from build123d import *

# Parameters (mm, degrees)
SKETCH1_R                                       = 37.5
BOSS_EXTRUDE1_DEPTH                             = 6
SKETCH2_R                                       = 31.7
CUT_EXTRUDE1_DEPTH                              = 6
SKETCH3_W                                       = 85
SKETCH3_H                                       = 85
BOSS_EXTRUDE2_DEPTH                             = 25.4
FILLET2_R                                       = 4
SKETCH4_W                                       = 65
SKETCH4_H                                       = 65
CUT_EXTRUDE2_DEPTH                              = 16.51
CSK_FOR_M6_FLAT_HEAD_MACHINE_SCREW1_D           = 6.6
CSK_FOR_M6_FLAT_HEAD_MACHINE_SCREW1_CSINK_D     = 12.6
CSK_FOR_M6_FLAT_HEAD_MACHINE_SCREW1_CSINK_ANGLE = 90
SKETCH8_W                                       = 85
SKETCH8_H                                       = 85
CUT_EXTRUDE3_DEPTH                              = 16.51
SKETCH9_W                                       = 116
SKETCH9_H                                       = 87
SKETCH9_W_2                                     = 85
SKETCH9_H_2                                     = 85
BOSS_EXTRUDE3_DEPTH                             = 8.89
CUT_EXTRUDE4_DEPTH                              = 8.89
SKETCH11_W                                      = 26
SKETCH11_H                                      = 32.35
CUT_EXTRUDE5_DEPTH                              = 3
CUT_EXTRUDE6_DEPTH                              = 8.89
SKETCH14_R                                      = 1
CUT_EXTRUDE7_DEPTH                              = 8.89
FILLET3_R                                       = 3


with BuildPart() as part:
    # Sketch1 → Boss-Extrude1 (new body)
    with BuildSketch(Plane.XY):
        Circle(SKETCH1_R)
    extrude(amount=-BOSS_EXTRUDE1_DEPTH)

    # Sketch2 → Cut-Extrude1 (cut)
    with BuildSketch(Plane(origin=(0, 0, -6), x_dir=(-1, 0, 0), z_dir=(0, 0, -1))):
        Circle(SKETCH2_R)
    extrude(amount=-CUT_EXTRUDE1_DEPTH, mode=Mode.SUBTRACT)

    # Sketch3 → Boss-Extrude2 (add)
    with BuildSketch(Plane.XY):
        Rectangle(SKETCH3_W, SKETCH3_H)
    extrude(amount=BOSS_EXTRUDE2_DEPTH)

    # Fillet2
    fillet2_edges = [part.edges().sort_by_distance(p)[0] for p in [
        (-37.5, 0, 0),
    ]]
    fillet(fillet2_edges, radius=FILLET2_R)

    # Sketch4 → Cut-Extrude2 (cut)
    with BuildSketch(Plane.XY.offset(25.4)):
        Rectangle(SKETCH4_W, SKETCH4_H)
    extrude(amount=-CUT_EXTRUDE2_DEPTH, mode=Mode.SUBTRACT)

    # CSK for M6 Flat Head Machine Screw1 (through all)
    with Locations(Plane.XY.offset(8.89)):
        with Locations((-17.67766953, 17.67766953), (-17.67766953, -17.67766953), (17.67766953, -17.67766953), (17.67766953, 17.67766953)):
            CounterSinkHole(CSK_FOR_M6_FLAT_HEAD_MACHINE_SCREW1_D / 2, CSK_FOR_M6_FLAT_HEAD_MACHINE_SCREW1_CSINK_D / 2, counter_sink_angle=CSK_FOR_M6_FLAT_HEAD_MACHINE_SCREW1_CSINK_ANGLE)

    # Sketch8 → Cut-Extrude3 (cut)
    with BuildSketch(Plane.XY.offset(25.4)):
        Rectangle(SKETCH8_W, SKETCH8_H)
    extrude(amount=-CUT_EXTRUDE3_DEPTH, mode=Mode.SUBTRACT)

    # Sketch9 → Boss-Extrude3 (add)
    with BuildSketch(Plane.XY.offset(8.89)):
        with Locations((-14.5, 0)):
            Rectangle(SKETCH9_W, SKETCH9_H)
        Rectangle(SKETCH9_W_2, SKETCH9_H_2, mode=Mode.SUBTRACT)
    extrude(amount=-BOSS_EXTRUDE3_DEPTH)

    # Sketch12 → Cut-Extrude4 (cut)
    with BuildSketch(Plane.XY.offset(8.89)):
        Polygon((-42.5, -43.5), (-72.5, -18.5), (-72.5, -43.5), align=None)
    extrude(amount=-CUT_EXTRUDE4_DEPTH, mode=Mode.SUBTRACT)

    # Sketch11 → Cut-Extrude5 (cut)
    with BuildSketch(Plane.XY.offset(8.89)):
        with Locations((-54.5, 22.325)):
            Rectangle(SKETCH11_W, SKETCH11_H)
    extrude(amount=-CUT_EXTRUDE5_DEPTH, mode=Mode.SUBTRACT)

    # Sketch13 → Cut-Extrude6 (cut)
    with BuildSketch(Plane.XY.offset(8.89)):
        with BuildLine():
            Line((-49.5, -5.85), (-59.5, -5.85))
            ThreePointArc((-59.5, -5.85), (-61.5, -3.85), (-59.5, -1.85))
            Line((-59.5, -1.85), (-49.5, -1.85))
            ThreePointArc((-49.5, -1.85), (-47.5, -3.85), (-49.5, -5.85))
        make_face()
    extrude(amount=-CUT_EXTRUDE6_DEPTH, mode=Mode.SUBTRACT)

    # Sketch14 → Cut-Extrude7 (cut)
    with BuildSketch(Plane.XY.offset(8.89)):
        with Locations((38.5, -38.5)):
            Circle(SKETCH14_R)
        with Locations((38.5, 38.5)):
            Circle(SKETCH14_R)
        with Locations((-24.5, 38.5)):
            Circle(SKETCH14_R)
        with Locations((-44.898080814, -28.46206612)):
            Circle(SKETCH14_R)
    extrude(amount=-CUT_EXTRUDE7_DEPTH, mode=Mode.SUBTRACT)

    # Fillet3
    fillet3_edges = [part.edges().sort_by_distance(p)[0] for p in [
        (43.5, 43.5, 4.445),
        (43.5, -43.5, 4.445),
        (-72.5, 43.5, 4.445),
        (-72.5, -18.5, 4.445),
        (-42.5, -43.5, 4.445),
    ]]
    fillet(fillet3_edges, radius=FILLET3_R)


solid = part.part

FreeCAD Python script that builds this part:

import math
import FreeCAD as App
import Part
import Sketcher


def edges_at(feature, points):
    """Names of the edges that pass closest to the given points."""
    edges = feature.Shape.Edges
    near = lambda p: min(range(len(edges)), key=lambda i: edges[i].distToShape(Part.Vertex(*p))[0])
    return sorted({f"Edge{near(p) + 1}" for p in points})


def add_polygon(sketch, points):
    """Adds a closed chain of lines whose ends are joined by coincident constraints."""
    first, n = sketch.GeometryCount, len(points)
    for a, b in zip(points, points[1:] + points[:1]):
        sketch.addGeometry(Part.LineSegment(App.Vector(*a, 0), App.Vector(*b, 0)), False)
    for i in range(n):
        sketch.addConstraint(Sketcher.Constraint("Coincident", first + i, 2, first + (i + 1) % n, 1))

doc = App.newDocument("Part")
body = doc.addObject("PartDesign::Body", "Body")

# Sketch on XY plane
sketch1 = doc.addObject("Sketcher::SketchObject", "Sketch")
body.addObject(sketch1)
sketch1.AttachmentSupport = (doc.XY_Plane, [""])
sketch1.MapMode = "FlatFace"
sketch1.addGeometry(Part.Circle(App.Vector(0, 0, 0), App.Vector(0, 0, 1), 38), False)
sketch1.addConstraint([
    Sketcher.Constraint("Coincident", 0, 3, -1, 1),
    Sketcher.Constraint("Diameter", 0, 75.0),
])
pad1 = doc.addObject("PartDesign::Pad", "Pad")
body.addObject(pad1)
pad1.Profile = sketch1
pad1.Length = 6
pad1.Reversed = True

# Sketch on XY plane
sketch2 = doc.addObject("Sketcher::SketchObject", "Sketch001")
body.addObject(sketch2)
sketch2.AttachmentSupport = (doc.XY_Plane, [""])
sketch2.MapMode = "FlatFace"
sketch2.AttachmentOffset = App.Placement(App.Vector(0, 0, -6), App.Rotation())
sketch2.addGeometry(Part.Circle(App.Vector(0, 0, 0), App.Vector(0, 0, 1), 32), False)
sketch2.addConstraint([
    Sketcher.Constraint("Coincident", 0, 3, -1, 1),
    Sketcher.Constraint("Diameter", 0, 63.4),
])
pocket1 = doc.addObject("PartDesign::Pocket", "Pocket")
body.addObject(pocket1)
pocket1.Profile = sketch2
pocket1.Length = 6
pocket1.Reversed = True

# Sketch on XY plane
sketch3 = doc.addObject("Sketcher::SketchObject", "Sketch002")
body.addObject(sketch3)
sketch3.AttachmentSupport = (doc.XY_Plane, [""])
sketch3.MapMode = "FlatFace"
add_polygon(sketch3, [(-42, 42), (-42, -42), (42, -42), (42, 42)])  # lines 0-3
sketch3.addConstraint([
    Sketcher.Constraint("Vertical", 0),
    Sketcher.Constraint("Horizontal", 1),
    Sketcher.Constraint("Vertical", 2),
    Sketcher.Constraint("Horizontal", 3),
    Sketcher.Constraint("Symmetric", 0, 2, 2, 2, -1, 1),
    Sketcher.Constraint("Equal", 3, 0),
    Sketcher.Constraint("DistanceX", 1, 1, 1, 2, 85.0),
])
pad2 = doc.addObject("PartDesign::Pad", "Pad001")
body.addObject(pad2)
pad2.Profile = sketch3
pad2.Length = 25.4
doc.recompute()

fillet = doc.addObject("PartDesign::Fillet", "Fillet")
body.addObject(fillet)
fillet.Base = (pad2, edges_at(pad2, [(-37.5, 0, 0)]))
fillet.Radius = 4

# Sketch on XY plane
sketch4 = doc.addObject("Sketcher::SketchObject", "Sketch003")
body.addObject(sketch4)
sketch4.AttachmentSupport = (doc.XY_Plane, [""])
sketch4.MapMode = "FlatFace"
sketch4.AttachmentOffset = App.Placement(App.Vector(0, 0, 25.4), App.Rotation())
add_polygon(sketch4, [(-32, 32), (-32, -32), (32, -32), (32, 32)])  # lines 0-3
sketch4.addConstraint([
    Sketcher.Constraint("Vertical", 0),
    Sketcher.Constraint("Horizontal", 1),
    Sketcher.Constraint("Vertical", 2),
    Sketcher.Constraint("Horizontal", 3),
    Sketcher.Constraint("Symmetric", 0, 2, 2, 2, -1, 1),
    Sketcher.Constraint("Equal", 3, 0),
    Sketcher.Constraint("DistanceX", 1, 1, 1, 2, 65.0),
])
pocket2 = doc.addObject("PartDesign::Pocket", "Pocket001")
body.addObject(pocket2)
pocket2.Profile = sketch4
pocket2.Length = 16.51

# Sketch on XY plane
sketch5 = doc.addObject("Sketcher::SketchObject", "Sketch004")
body.addObject(sketch5)
sketch5.AttachmentSupport = (doc.XY_Plane, [""])
sketch5.MapMode = "FlatFace"
sketch5.AttachmentOffset = App.Placement(App.Vector(0, 0, 8.89), App.Rotation())
sketch5.addGeometry([
    Part.Circle(App.Vector(-17.7, 17.7, 0), App.Vector(0, 0, 1), 3.3),
    Part.Circle(App.Vector(-17.7, -17.7, 0), App.Vector(0, 0, 1), 3.3),
    Part.Circle(App.Vector(17.7, -17.7, 0), App.Vector(0, 0, 1), 3.3),
    Part.Circle(App.Vector(17.7, 17.7, 0), App.Vector(0, 0, 1), 3.3),
], False)
sketch5.addConstraint([
    Sketcher.Constraint("Equal", 0, 1),
    Sketcher.Constraint("Equal", 1, 2),
    Sketcher.Constraint("Equal", 2, 3),
    Sketcher.Constraint("Symmetric", 0, 3, 2, 3, -1, 1),
    Sketcher.Constraint("Symmetric", 1, 3, 3, 3, -1, 1),
    Sketcher.Constraint("Symmetric", 1, 3, 2, 3, -2),
    Sketcher.Constraint("Diameter", 0, 6.6),
    Sketcher.Constraint("DistanceX", 0, 3, -1, 1, 17.67767),
    Sketcher.Constraint("DistanceY", -1, 1, 0, 3, 17.67767),
])
doc.recompute()
hole = doc.addObject("PartDesign::Hole", "Hole")
body.addObject(hole)
hole.Profile = sketch5
hole.ThreadType = "None"
hole.Diameter = 6.6
hole.DepthType = "ThroughAll"
hole.HoleCutType = "Countersink"
hole.HoleCutDiameter = 12.6
hole.HoleCutCountersinkAngle = 90

# Sketch on XY plane
sketch6 = doc.addObject("Sketcher::SketchObject", "Sketch005")
body.addObject(sketch6)
sketch6.AttachmentSupport = (doc.XY_Plane, [""])
sketch6.MapMode = "FlatFace"
sketch6.AttachmentOffset = App.Placement(App.Vector(0, 0, 25.4), App.Rotation())
add_polygon(sketch6, [(-42, 42), (-42, -42), (42, -42), (42, 42)])  # lines 0-3
sketch6.addConstraint([
    Sketcher.Constraint("Vertical", 0),
    Sketcher.Constraint("Horizontal", 1),
    Sketcher.Constraint("Vertical", 2),
    Sketcher.Constraint("Horizontal", 3),
    Sketcher.Constraint("Symmetric", 0, 2, 2, 2, -1, 1),
    Sketcher.Constraint("Equal", 3, 0),
    Sketcher.Constraint("DistanceX", 1, 1, 1, 2, 85.0),
])
pocket3 = doc.addObject("PartDesign::Pocket", "Pocket002")
body.addObject(pocket3)
pocket3.Profile = sketch6
pocket3.Length = 16.51

# Sketch on XY plane
sketch7 = doc.addObject("Sketcher::SketchObject", "Sketch006")
body.addObject(sketch7)
sketch7.AttachmentSupport = (doc.XY_Plane, [""])
sketch7.MapMode = "FlatFace"
sketch7.AttachmentOffset = App.Placement(App.Vector(0, 0, 8.89), App.Rotation())
add_polygon(sketch7, [(-72, 44), (-72, -44), (44, -44), (44, 44)])  # lines 0-3
add_polygon(sketch7, [(42, -42), (-42, -42), (-42, 42), (42, 42)])  # lines 4-7
sketch7.addConstraint([
    Sketcher.Constraint("Vertical", 0),
    Sketcher.Constraint("Horizontal", 1),
    Sketcher.Constraint("Vertical", 2),
    Sketcher.Constraint("Horizontal", 3),
    Sketcher.Constraint("Horizontal", 4),
    Sketcher.Constraint("Vertical", 5),
    Sketcher.Constraint("Horizontal", 6),
    Sketcher.Constraint("Vertical", 7),
    Sketcher.Constraint("Symmetric", 4, 2, 6, 2, -1, 1),
    Sketcher.Constraint("Equal", 6, 5),
    Sketcher.Constraint("DistanceX", 1, 1, 1, 2, 116.0),
    Sketcher.Constraint("DistanceX", 4, 2, 4, 1, 85.0),
    Sketcher.Constraint("DistanceY", 0, 2, 0, 1, 87.0),
    Sketcher.Constraint("DistanceX", 0, 2, 4, 2, 30.0),
    Sketcher.Constraint("DistanceY", 0, 2, 4, 2, 1.0),
])
pad3 = doc.addObject("PartDesign::Pad", "Pad002")
body.addObject(pad3)
pad3.Profile = sketch7
pad3.Length = 8.89
pad3.Reversed = True

# Sketch on XY plane
sketch8 = doc.addObject("Sketcher::SketchObject", "Sketch007")
body.addObject(sketch8)
sketch8.AttachmentSupport = (doc.XY_Plane, [""])
sketch8.MapMode = "FlatFace"
sketch8.AttachmentOffset = App.Placement(App.Vector(0, 0, 8.89), App.Rotation())
add_polygon(sketch8, [(-42, -44), (-72, -18), (-72, -44)])  # lines 0-2
sketch8.addConstraint([
    Sketcher.Constraint("Vertical", 1),
    Sketcher.Constraint("Horizontal", 2),
    Sketcher.Constraint("DistanceX", 2, 1, 2, 2, 30.0),
    Sketcher.Constraint("DistanceY", 1, 2, 1, 1, 25.0),
    Sketcher.Constraint("DistanceX", 0, 2, -1, 1, 72.5),
    Sketcher.Constraint("DistanceY", 0, 2, -1, 1, 18.5),
])
pocket4 = doc.addObject("PartDesign::Pocket", "Pocket003")
body.addObject(pocket4)
pocket4.Profile = sketch8
pocket4.Length = 8.89

# Sketch on XY plane
sketch9 = doc.addObject("Sketcher::SketchObject", "Sketch008")
body.addObject(sketch9)
sketch9.AttachmentSupport = (doc.XY_Plane, [""])
sketch9.MapMode = "FlatFace"
sketch9.AttachmentOffset = App.Placement(App.Vector(0, 0, 8.89), App.Rotation())
add_polygon(sketch9, [(-68, 38), (-68, 6), (-42, 6), (-42, 38)])  # lines 0-3
sketch9.addConstraint([
    Sketcher.Constraint("Vertical", 0),
    Sketcher.Constraint("Horizontal", 1),
    Sketcher.Constraint("Vertical", 2),
    Sketcher.Constraint("Horizontal", 3),
    Sketcher.Constraint("DistanceX", 1, 1, 1, 2, 26.0),
    Sketcher.Constraint("DistanceY", 0, 2, 0, 1, 32.35),
    Sketcher.Constraint("DistanceX", 0, 2, -1, 1, 67.5),
    Sketcher.Constraint("DistanceY", -1, 1, 2, 2, 38.5),
])
pocket5 = doc.addObject("PartDesign::Pocket", "Pocket004")
body.addObject(pocket5)
pocket5.Profile = sketch9
pocket5.Length = 3

# Sketch on XY plane
sketch10 = doc.addObject("Sketcher::SketchObject", "Sketch009")
body.addObject(sketch10)
sketch10.AttachmentSupport = (doc.XY_Plane, [""])
sketch10.MapMode = "FlatFace"
sketch10.AttachmentOffset = App.Placement(App.Vector(0, 0, 8.89), App.Rotation())
sketch10.addGeometry([
    Part.LineSegment(App.Vector(-59.5, -5.8, 0), App.Vector(-49.5, -5.8, 0)),
    Part.ArcOfCircle(Part.Circle(App.Vector(-49.5, -3.9, 0), App.Vector(0, 0, 1), 2), math.radians(-90), math.radians(90)),
    Part.LineSegment(App.Vector(-49.5, -1.9, 0), App.Vector(-59.5, -1.9, 0)),
    Part.ArcOfCircle(Part.Circle(App.Vector(-59.5, -3.9, 0), App.Vector(0, 0, 1), 2), math.radians(90), math.radians(270)),
], False)
sketch10.addConstraint([
    Sketcher.Constraint("Tangent", 0, 2, 1, 1),
    Sketcher.Constraint("Tangent", 1, 2, 2, 1),
    Sketcher.Constraint("Tangent", 2, 2, 3, 1),
    Sketcher.Constraint("Tangent", 3, 2, 0, 1),
    Sketcher.Constraint("Horizontal", 0),
    Sketcher.Constraint("Horizontal", 2),
    Sketcher.Constraint("Radius", 1, 2.0),
    Sketcher.Constraint("DistanceX", 0, 1, 0, 2, 10.0),
    Sketcher.Constraint("DistanceX", 1, 3, -1, 1, 49.5),
    Sketcher.Constraint("DistanceY", 1, 3, -1, 1, 3.85),
])
pocket6 = doc.addObject("PartDesign::Pocket", "Pocket005")
body.addObject(pocket6)
pocket6.Profile = sketch10
pocket6.Length = 8.89

# Sketch on XY plane
sketch11 = doc.addObject("Sketcher::SketchObject", "Sketch010")
body.addObject(sketch11)
sketch11.AttachmentSupport = (doc.XY_Plane, [""])
sketch11.MapMode = "FlatFace"
sketch11.AttachmentOffset = App.Placement(App.Vector(0, 0, 8.89), App.Rotation())
sketch11.addGeometry([
    Part.Circle(App.Vector(38.5, -38.5, 0), App.Vector(0, 0, 1), 1),
    Part.Circle(App.Vector(38.5, 38.5, 0), App.Vector(0, 0, 1), 1),
    Part.Circle(App.Vector(-24.5, 38.5, 0), App.Vector(0, 0, 1), 1),
    Part.Circle(App.Vector(-44.9, -28.5, 0), App.Vector(0, 0, 1), 1),
], False)
sketch11.addConstraint([
    Sketcher.Constraint("Equal", 0, 1),
    Sketcher.Constraint("Equal", 1, 2),
    Sketcher.Constraint("Equal", 2, 3),
    Sketcher.Constraint("Symmetric", 0, 3, 1, 3, -1),
    Sketcher.Constraint("Horizontal", 1, 3, 2, 3),
    Sketcher.Constraint("Diameter", 0, 2.0),
    Sketcher.Constraint("DistanceY", 0, 3, 1, 3, 77.0),
    Sketcher.Constraint("DistanceX", 2, 3, 1, 3, 63.0),
    Sketcher.Constraint("DistanceX", -1, 1, 0, 3, 38.5),
    Sketcher.Constraint("DistanceX", 3, 3, -1, 1, 44.898081),
    Sketcher.Constraint("DistanceY", 3, 3, -1, 1, 28.462066),
])
pocket7 = doc.addObject("PartDesign::Pocket", "Pocket006")
body.addObject(pocket7)
pocket7.Profile = sketch11
pocket7.Length = 8.89
doc.recompute()

fillet2 = doc.addObject("PartDesign::Fillet", "Fillet001")
body.addObject(fillet2)
fillet2.Base = (pocket7, edges_at(pocket7, [
    (43.5, 43.5, 4.445),
    (43.5, -43.5, 4.445),
    (-72.5, 43.5, 4.445),
    (-72.5, -18.5, 4.445),
    (-42.5, -43.5, 4.445),
]))
fillet2.Radius = 3

doc.recompute()
